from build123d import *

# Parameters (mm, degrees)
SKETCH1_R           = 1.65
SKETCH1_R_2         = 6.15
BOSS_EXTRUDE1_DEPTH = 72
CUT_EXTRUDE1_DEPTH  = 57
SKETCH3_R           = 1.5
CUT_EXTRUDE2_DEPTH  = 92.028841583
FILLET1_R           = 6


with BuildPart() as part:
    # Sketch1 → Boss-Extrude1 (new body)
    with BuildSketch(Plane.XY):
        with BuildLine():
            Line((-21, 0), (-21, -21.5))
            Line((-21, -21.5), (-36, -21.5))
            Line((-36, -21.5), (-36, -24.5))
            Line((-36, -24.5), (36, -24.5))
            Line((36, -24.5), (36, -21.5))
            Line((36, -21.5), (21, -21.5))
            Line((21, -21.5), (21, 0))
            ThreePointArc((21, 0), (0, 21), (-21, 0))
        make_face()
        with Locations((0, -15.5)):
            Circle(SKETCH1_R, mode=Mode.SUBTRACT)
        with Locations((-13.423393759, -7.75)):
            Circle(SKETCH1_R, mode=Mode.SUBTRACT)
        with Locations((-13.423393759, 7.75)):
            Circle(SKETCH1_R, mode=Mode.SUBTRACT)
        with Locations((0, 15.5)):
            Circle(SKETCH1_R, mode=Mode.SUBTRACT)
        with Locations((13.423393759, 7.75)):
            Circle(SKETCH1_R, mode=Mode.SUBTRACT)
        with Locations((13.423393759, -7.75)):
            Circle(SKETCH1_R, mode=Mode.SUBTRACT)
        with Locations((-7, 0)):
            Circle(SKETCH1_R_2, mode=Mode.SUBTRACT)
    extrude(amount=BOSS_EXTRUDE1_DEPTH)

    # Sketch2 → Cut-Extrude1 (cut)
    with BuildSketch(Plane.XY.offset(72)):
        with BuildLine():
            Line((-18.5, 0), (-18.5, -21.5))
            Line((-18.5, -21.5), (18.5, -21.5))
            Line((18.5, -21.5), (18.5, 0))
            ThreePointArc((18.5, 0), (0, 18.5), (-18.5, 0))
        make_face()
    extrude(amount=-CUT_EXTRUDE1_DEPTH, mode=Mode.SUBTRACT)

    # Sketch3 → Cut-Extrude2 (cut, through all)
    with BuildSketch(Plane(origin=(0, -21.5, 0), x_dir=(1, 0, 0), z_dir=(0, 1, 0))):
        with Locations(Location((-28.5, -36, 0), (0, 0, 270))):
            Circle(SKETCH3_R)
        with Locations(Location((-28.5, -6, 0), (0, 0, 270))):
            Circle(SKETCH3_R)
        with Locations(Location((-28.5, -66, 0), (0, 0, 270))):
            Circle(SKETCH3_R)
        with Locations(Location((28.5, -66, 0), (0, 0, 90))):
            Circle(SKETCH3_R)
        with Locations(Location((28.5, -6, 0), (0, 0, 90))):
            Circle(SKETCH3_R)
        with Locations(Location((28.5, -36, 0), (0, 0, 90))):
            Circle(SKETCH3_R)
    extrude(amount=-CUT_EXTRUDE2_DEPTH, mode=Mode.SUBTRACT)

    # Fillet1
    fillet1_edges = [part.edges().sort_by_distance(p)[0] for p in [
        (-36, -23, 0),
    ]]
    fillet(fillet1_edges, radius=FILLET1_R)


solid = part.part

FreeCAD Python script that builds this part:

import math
import FreeCAD as App
import Part
import Sketcher
Q = App.Units.Quantity


def edges_at(feature, points):
    """Names of the edges that pass closest to the given points."""
    edges = feature.Shape.Edges
    near = lambda p: min(range(len(edges)), key=lambda i: edges[i].distToShape(Part.Vertex(*p))[0])
    return sorted({f"Edge{near(p) + 1}" for p in points})

doc = App.newDocument("Part")
params = doc.addObject("Spreadsheet::Sheet", "Params")
for row, (alias, value) in enumerate([
    ("sketch1_radius", "21 mm"),
    ("sketch1_diameter", "3.3 mm"),
    ("sketch1_diameter2", "12.3 mm"),
    ("sketch1_width", "15 mm"),
    ("sketch1_height", "3 mm"),
    ("pad1_length", "72 mm"),
    ("sketch2_radius", "18.5 mm"),
    ("sketch2_height", "21.5 mm"),
    ("pocket1_length", "57 mm"),
    ("sketch3_diameter", "3 mm"),
    ("fillet_radius", "6 mm"),
], start=1):
    params.set(f"A{row}", alias)
    params.set(f"B{row}", "=" + value)
    params.setAlias(f"B{row}", alias)

body = doc.addObject("PartDesign::Body", "Body")

# Sketch on XY plane
sketch1 = body.newObject("Sketcher::SketchObject", "Sketch")
sketch1.AttachmentSupport = (doc.getObject("XY_Plane"), [""])
sketch1.MapMode = "FlatFace"
sketch1.addGeometry([
    Part.LineSegment(App.Vector(-21, 0, 0), App.Vector(-21, -21.5, 0)),  # 0
    Part.LineSegment(App.Vector(-21, -21.5, 0), App.Vector(-36, -21.5, 0)),  # 1
    Part.LineSegment(App.Vector(-36, -21.5, 0), App.Vector(-36, -24.5, 0)),  # 2
    Part.LineSegment(App.Vector(-36, -24.5, 0), App.Vector(36, -24.5, 0)),  # 3
    Part.LineSegment(App.Vector(36, -24.5, 0), App.Vector(36, -21.5, 0)),  # 4
    Part.LineSegment(App.Vector(36, -21.5, 0), App.Vector(21, -21.5, 0)),  # 5
    Part.LineSegment(App.Vector(21, -21.5, 0), App.Vector(21, 0, 0)),  # 6
    Part.ArcOfCircle(Part.Circle(App.Vector(0, 0, 0), App.Vector(0, 0, 1), 21), math.radians(0), math.radians(180)),  # 7
    Part.Circle(App.Vector(-13.423394, -7.75, 0), App.Vector(0, 0, 1), 1.65),  # 8
    Part.Circle(App.Vector(0, -15.5, 0), App.Vector(0, 0, 1), 1.65),  # 9
    Part.Circle(App.Vector(13.423394, -7.75, 0), App.Vector(0, 0, 1), 1.65),  # 10
    Part.Circle(App.Vector(-13.423394, 7.75, 0), App.Vector(0, 0, 1), 1.65),  # 11
    Part.Circle(App.Vector(-7, 0, 0), App.Vector(0, 0, 1), 6.15),  # 12
    Part.Circle(App.Vector(13.423394, 7.75, 0), App.Vector(0, 0, 1), 1.65),  # 13
    Part.Circle(App.Vector(0, 15.5, 0), App.Vector(0, 0, 1), 1.65),  # 14
], False)
sketch1.addConstraint([
    Sketcher.Constraint("Coincident", 0, 2, 1, 1),
    Sketcher.Constraint("Coincident", 1, 2, 2, 1),
    Sketcher.Constraint("Coincident", 2, 2, 3, 1),
    Sketcher.Constraint("Coincident", 3, 2, 4, 1),
    Sketcher.Constraint("Coincident", 4, 2, 5, 1),
    Sketcher.Constraint("Coincident", 5, 2, 6, 1),
    Sketcher.Constraint("Tangent", 6, 2, 7, 1),
    Sketcher.Constraint("Tangent", 7, 2, 0, 1),
    Sketcher.Constraint("Vertical", 0),
    Sketcher.Constraint("Horizontal", 1),
    Sketcher.Constraint("Vertical", 2),
    Sketcher.Constraint("Horizontal", 3),
    Sketcher.Constraint("Vertical", 4),
    Sketcher.Constraint("Horizontal", 5),
    Sketcher.Constraint("Vertical", 6),
    Sketcher.Constraint("Coincident", 7, 3, -1, 1),
    Sketcher.Constraint("Equal", 8, 9),
    Sketcher.Constraint("Equal", 9, 10),
    Sketcher.Constraint("Equal", 10, 11),
    Sketcher.Constraint("Equal", 11, 13),
    Sketcher.Constraint("Equal", 13, 14),
    Sketcher.Constraint("Symmetric", 10, 3, 11, 3, -1, 1),
    Sketcher.Constraint("Symmetric", 8, 3, 13, 3, -1, 1),
    Sketcher.Constraint("Symmetric", 9, 3, 14, 3, -1, 1),
    Sketcher.Constraint("Symmetric", 8, 3, 10, 3, -2),
    Sketcher.Constraint("Symmetric", 1, 2, 4, 2, -2),
    Sketcher.Constraint("PointOnObject", 9, 3, -2),
    Sketcher.Constraint("PointOnObject", 12, 3, -1),
    Sketcher.Constraint("Radius", 7, Q("21 mm")),
    Sketcher.Constraint("Diameter", 8, Q("3.3 mm")),
    Sketcher.Constraint("Diameter", 12, Q("12.3 mm")),
    Sketcher.Constraint("DistanceX", 1, 2, 1, 1, Q("15 mm")),
    Sketcher.Constraint("DistanceY", 2, 2, 2, 1, Q("3 mm")),
    Sketcher.Constraint("DistanceY", 0, 2, 0, 1, Q("21.5 mm")),
    Sketcher.Constraint("DistanceX", 12, 3, -1, 1, Q("7 mm")),
    Sketcher.Constraint("DistanceY", 0, 2, 9, 3, Q("6 mm")),
    Sketcher.Constraint("DistanceY", 8, 3, 11, 3, Q("15.5 mm")),
    Sketcher.Constraint("DistanceX", 8, 3, -1, 1, Q("13.423394 mm")),
])
sketch1.setExpression("Constraints[28]", "Params.sketch1_radius")
sketch1.setExpression("Constraints[29]", "Params.sketch1_diameter")
sketch1.setExpression("Constraints[30]", "Params.sketch1_diameter2")
sketch1.setExpression("Constraints[31]", "Params.sketch1_width")
sketch1.setExpression("Constraints[32]", "Params.sketch1_height")
pad1 = body.newObject("PartDesign::Pad", "Pad")
pad1.Profile = sketch1
pad1.setExpression("Length", "Params.pad1_length")

# Sketch on XY plane
sketch2 = body.newObject("Sketcher::SketchObject", "Sketch001")
sketch2.AttachmentSupport = (doc.getObject("XY_Plane"), [""])
sketch2.MapMode = "FlatFace"
sketch2.AttachmentOffset = App.Placement(App.Vector(0, 0, 72), App.Rotation())
sketch2.addGeometry([
    Part.LineSegment(App.Vector(-18.5, 0, 0), App.Vector(-18.5, -21.5, 0)),
    Part.LineSegment(App.Vector(-18.5, -21.5, 0), App.Vector(18.5, -21.5, 0)),
    Part.LineSegment(App.Vector(18.5, -21.5, 0), App.Vector(18.5, 0, 0)),
    Part.ArcOfCircle(Part.Circle(App.Vector(0, 0, 0), App.Vector(0, 0, 1), 18.5), math.radians(0), math.radians(180)),
], False)
sketch2.addConstraint([
    Sketcher.Constraint("Coincident", 0, 2, 1, 1),
    Sketcher.Constraint("Coincident", 1, 2, 2, 1),
    Sketcher.Constraint("Tangent", 2, 2, 3, 1),
    Sketcher.Constraint("Tangent", 3, 2, 0, 1),
    Sketcher.Constraint("Vertical", 0),
    Sketcher.Constraint("Horizontal", 1),
    Sketcher.Constraint("Vertical", 2),
    Sketcher.Constraint("Coincident", 3, 3, -1, 1),
    Sketcher.Constraint("Radius", 3, Q("18.5 mm")),
    Sketcher.Constraint("DistanceY", 0, 2, 0, 1, Q("21.5 mm")),
])
sketch2.setExpression("Constraints[8]", "Params.sketch2_radius")
sketch2.setExpression("Constraints[9]", "Params.sketch2_height")
pocket1 = body.newObject("PartDesign::Pocket", "Pocket")
pocket1.Profile = sketch2
pocket1.setExpression("Length", "Params.pocket1_length")

# Sketch on XZ plane
sketch3 = body.newObject("Sketcher::SketchObject", "Sketch002")
sketch3.AttachmentSupport = (doc.getObject("XZ_Plane"), [""])
sketch3.MapMode = "FlatFace"
sketch3.AttachmentOffset = App.Placement(App.Vector(0, 0, 21.5), App.Rotation())
sketch3.addGeometry([
    Part.Circle(App.Vector(-28.5, 36, 0), App.Vector(0, 0, 1), 1.5),  # 0
    Part.Circle(App.Vector(-28.5, 6, 0), App.Vector(0, 0, 1), 1.5),  # 1
    Part.Circle(App.Vector(-28.5, 66, 0), App.Vector(0, 0, 1), 1.5),  # 2
    Part.Circle(App.Vector(28.5, 66, 0), App.Vector(0, 0, 1), 1.5),  # 3
    Part.Circle(App.Vector(28.5, 6, 0), App.Vector(0, 0, 1), 1.5),  # 4
    Part.Circle(App.Vector(28.5, 36, 0), App.Vector(0, 0, 1), 1.5),  # 5
], False)
sketch3.addConstraint([
    Sketcher.Constraint("Equal", 0, 1),
    Sketcher.Constraint("Equal", 1, 2),
    Sketcher.Constraint("Equal", 2, 3),
    Sketcher.Constraint("Equal", 3, 4),
    Sketcher.Constraint("Equal", 4, 5),
    Sketcher.Constraint("Symmetric", 2, 3, 3, 3, -2),
    Sketcher.Constraint("Symmetric", 1, 3, 4, 3, -2),
    Sketcher.Constraint("Symmetric", 0, 3, 5, 3, -2),
    Sketcher.Constraint("Vertical", 0, 3, 1, 3),
    Sketcher.Constraint("Vertical", 1, 3, 2, 3),
    Sketcher.Constraint("Diameter", 0, Q("3 mm")),
    Sketcher.Constraint("DistanceY", -1, 1, 0, 3, Q("36 mm")),
    Sketcher.Constraint("DistanceY", -1, 1, 1, 3, Q("6 mm")),
    Sketcher.Constraint("DistanceY", -1, 1, 2, 3, Q("66 mm")),
    Sketcher.Constraint("DistanceX", 2, 3, 3, 3, Q("57 mm")),
])
sketch3.setExpression("Constraints[10]", "Params.sketch3_diameter")
pocket2 = body.newObject("PartDesign::Pocket", "Pocket001")
pocket2.Profile = sketch3
pocket2.Type = "ThroughAll"
pocket2.Reversed = True
doc.recompute()

fillet = body.newObject("PartDesign::Fillet", "Fillet")
fillet.Base = (pocket2, edges_at(pocket2, [(-36, -23, 0)]))
fillet.setExpression("Radius", "Params.fillet_radius")

doc.recompute()
